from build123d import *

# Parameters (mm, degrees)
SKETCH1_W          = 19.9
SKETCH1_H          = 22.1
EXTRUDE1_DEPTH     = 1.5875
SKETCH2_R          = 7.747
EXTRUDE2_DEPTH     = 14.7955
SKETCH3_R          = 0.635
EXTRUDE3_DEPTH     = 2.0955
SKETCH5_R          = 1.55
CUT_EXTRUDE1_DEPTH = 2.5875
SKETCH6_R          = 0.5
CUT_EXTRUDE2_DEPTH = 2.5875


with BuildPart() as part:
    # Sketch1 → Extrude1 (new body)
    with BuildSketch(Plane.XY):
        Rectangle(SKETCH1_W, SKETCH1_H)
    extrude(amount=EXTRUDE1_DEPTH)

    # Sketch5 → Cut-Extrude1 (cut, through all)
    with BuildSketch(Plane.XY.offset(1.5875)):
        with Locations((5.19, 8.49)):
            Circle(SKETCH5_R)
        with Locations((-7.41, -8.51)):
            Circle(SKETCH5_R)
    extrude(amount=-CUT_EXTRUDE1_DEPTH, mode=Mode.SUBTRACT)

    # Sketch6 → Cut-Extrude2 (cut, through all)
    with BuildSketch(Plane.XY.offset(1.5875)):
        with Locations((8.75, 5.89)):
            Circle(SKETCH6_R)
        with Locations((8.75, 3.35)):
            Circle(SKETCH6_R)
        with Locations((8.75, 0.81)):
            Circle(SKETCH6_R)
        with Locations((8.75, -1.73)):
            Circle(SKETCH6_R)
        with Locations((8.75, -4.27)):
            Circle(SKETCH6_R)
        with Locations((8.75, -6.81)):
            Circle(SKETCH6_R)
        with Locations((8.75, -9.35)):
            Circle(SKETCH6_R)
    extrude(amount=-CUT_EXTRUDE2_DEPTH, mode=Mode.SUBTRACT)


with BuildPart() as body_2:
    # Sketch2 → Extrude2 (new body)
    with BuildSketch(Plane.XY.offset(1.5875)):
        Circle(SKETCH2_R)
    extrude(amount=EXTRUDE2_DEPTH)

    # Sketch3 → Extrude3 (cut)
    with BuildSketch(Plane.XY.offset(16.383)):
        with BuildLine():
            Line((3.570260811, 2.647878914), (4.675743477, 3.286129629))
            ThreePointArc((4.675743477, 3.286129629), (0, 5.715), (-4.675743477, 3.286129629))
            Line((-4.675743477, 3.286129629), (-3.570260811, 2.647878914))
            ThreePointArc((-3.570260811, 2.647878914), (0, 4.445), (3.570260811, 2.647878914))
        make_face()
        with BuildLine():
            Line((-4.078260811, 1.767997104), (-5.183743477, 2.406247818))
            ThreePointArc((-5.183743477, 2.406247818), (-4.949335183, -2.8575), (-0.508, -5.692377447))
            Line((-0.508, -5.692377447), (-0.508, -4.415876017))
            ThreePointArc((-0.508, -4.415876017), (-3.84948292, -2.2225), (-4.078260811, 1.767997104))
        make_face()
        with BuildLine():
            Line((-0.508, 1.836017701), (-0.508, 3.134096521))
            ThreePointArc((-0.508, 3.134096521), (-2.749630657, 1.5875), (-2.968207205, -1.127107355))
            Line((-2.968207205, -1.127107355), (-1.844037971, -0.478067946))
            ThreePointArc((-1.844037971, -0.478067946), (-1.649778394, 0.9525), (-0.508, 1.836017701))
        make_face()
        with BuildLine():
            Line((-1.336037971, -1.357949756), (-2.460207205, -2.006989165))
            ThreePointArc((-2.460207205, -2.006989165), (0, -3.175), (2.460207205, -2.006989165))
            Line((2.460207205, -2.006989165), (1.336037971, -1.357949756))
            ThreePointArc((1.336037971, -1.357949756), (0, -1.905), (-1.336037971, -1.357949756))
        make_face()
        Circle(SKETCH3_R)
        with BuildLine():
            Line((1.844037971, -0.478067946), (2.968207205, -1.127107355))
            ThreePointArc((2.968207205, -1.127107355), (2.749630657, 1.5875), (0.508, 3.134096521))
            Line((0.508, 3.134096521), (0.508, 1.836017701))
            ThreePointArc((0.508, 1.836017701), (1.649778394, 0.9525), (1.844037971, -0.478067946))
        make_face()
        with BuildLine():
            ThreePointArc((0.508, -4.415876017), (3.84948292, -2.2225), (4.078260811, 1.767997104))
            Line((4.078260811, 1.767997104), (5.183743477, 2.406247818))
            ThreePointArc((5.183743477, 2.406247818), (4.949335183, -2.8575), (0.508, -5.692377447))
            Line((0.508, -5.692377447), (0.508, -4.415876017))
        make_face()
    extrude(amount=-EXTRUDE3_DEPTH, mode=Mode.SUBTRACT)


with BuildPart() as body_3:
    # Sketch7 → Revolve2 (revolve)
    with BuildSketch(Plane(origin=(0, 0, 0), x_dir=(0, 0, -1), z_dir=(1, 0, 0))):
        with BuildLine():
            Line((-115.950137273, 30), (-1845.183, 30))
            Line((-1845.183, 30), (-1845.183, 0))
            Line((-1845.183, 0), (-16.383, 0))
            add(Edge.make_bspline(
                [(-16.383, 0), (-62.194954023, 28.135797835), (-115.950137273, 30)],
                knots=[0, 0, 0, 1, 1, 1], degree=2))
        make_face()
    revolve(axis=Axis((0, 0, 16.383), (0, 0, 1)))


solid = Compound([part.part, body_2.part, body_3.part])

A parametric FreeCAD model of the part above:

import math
import FreeCAD as App
import Part
import Sketcher
from FreeCAD import Vector
Q = App.Units.Quantity

doc = App.newDocument("Part")
params = doc.addObject("Spreadsheet::Sheet", "Params")
for row, (alias, value) in enumerate([
    ("pad1_length", "0.0625 in"),
    ("sketch4_diameter", "0.61 in"),
    ("pad2_length", "0.5825 in"),
    ("sketch5_diameter", "0.05 in"),
    ("sketch5_radius", "0.225 in"),
    ("sketch5_radius2", "0.175 in"),
    ("sketch5_radius3", "0.125 in"),
    ("sketch5_radius4", "0.075 in"),
    ("pocket3_length", "0.0825 in"),
    ("sketch6_height", "72 in"),
    ("revolution_angle", "360 deg"),
], start=1):
    params.set(f"A{row}", alias)
    params.set(f"B{row}", "=" + value)
    params.setAlias(f"B{row}", alias)

body = doc.addObject("PartDesign::Body", "Body")

# Sketch on XY plane
sketch1 = body.newObject("Sketcher::SketchObject", "Sketch")
sketch1.AttachmentSupport = (doc.getObject("XY_Plane"), [""])
sketch1.MapMode = "FlatFace"
sketch1.addGeometry([
    Part.LineSegment(Vector(-10, 11, 0), Vector(-10, -11, 0)),
    Part.LineSegment(Vector(-10, -11, 0), Vector(10, -11, 0)),
    Part.LineSegment(Vector(10, -11, 0), Vector(10, 11, 0)),
    Part.LineSegment(Vector(10, 11, 0), Vector(-10, 11, 0)),
], False)
sketch1.addConstraint([
    Sketcher.Constraint("Coincident", 0, 2, 1, 1),
    Sketcher.Constraint("Coincident", 1, 2, 2, 1),
    Sketcher.Constraint("Coincident", 2, 2, 3, 1),
    Sketcher.Constraint("Coincident", 3, 2, 0, 1),
    Sketcher.Constraint("Vertical", 0),
    Sketcher.Constraint("Horizontal", 1),
    Sketcher.Constraint("Vertical", 2),
    Sketcher.Constraint("Horizontal", 3),
    Sketcher.Constraint("Symmetric", 0, 2, 2, 2, -1, 1),
    Sketcher.Constraint("DistanceX", 1, 1, 1, 2, Q("19.9 mm")),
    Sketcher.Constraint("DistanceY", 0, 2, 0, 1, Q("22.1 mm")),
])
pad1 = body.newObject("PartDesign::Pad", "Pad")
pad1.Profile = sketch1
pad1.setExpression("Length", "Params.pad1_length")

# Sketch on XY plane
sketch2 = body.newObject("Sketcher::SketchObject", "Sketch001")
sketch2.AttachmentSupport = (doc.getObject("XY_Plane"), [""])
sketch2.MapMode = "FlatFace"
sketch2.AttachmentOffset = App.Placement(Vector(0, 0, 0.0625 * 25.4), App.Rotation())
sketch2.addGeometry([
    Part.Circle(Vector(5.2, 8.5, 0), Vector(0, 0, 1), 1.6),
    Part.Circle(Vector(-7.4, -8.5, 0), Vector(0, 0, 1), 1.6),
], False)
sketch2.addConstraint([
    Sketcher.Constraint("Equal", 0, 1),
    Sketcher.Constraint("Diameter", 0, Q("3.1 mm")),
    Sketcher.Constraint("DistanceX", -1, 1, 0, 3, Q("5.19 mm")),
    Sketcher.Constraint("DistanceY", -1, 1, 0, 3, Q("8.49 mm")),
    Sketcher.Constraint("DistanceX", 1, 3, -1, 1, Q("7.41 mm")),
    Sketcher.Constraint("DistanceY", 1, 3, -1, 1, Q("8.51 mm")),
])
pocket1 = body.newObject("PartDesign::Pocket", "Pocket")
pocket1.Profile = sketch2
pocket1.Type = "ThroughAll"

# Sketch on XY plane
sketch3 = body.newObject("Sketcher::SketchObject", "Sketch002")
sketch3.AttachmentSupport = (doc.getObject("XY_Plane"), [""])
sketch3.MapMode = "FlatFace"
sketch3.AttachmentOffset = App.Placement(Vector(0, 0, 0.0625 * 25.4), App.Rotation())
sketch3.addGeometry([
    Part.Circle(Vector(8.8, 5.9, 0), Vector(0, 0, 1), 0.5),  # 0
    Part.Circle(Vector(8.8, 3.4, 0), Vector(0, 0, 1), 0.5),  # 1
    Part.Circle(Vector(8.8, 0.8, 0), Vector(0, 0, 1), 0.5),  # 2
    Part.Circle(Vector(8.8, -1.7, 0), Vector(0, 0, 1), 0.5),  # 3
    Part.Circle(Vector(8.8, -4.3, 0), Vector(0, 0, 1), 0.5),  # 4
    Part.Circle(Vector(8.8, -6.8, 0), Vector(0, 0, 1), 0.5),  # 5
    Part.Circle(Vector(8.8, -9.3, 0), Vector(0, 0, 1), 0.5),  # 6
], False)
sketch3.addConstraint([
    Sketcher.Constraint("Equal", 0, 1),
    Sketcher.Constraint("Equal", 1, 2),
    Sketcher.Constraint("Equal", 2, 3),
    Sketcher.Constraint("Equal", 3, 4),
    Sketcher.Constraint("Equal", 4, 5),
    Sketcher.Constraint("Equal", 5, 6),
    Sketcher.Constraint("Vertical", 0, 3, 1, 3),
    Sketcher.Constraint("Vertical", 1, 3, 2, 3),
    Sketcher.Constraint("Vertical", 2, 3, 3, 3),
    Sketcher.Constraint("Vertical", 3, 3, 4, 3),
    Sketcher.Constraint("Vertical", 4, 3, 5, 3),
    Sketcher.Constraint("Vertical", 5, 3, 6, 3),
    Sketcher.Constraint("DistanceY", 1, 3, 0, 3, Q("0.1 in")),
    Sketcher.Constraint("DistanceY", 2, 3, 1, 3, Q("0.1 in")),
    Sketcher.Constraint("DistanceY", 3, 3, 2, 3, Q("0.1 in")),
    Sketcher.Constraint("DistanceY", 4, 3, 3, 3, Q("0.1 in")),
    Sketcher.Constraint("DistanceY", 5, 3, 4, 3, Q("0.1 in")),
    Sketcher.Constraint("DistanceY", 6, 3, 5, 3, Q("0.1 in")),
    Sketcher.Constraint("Diameter", 0, Q("1 mm")),
    Sketcher.Constraint("DistanceX", -1, 1, 0, 3, Q("8.75 mm")),
    Sketcher.Constraint("DistanceY", -1, 1, 0, 3, Q("5.89 mm")),
])
pocket2 = body.newObject("PartDesign::Pocket", "Pocket001")
pocket2.Profile = sketch3
pocket2.Type = "ThroughAll"
body2 = doc.addObject("PartDesign::Body", "Body001")

# Sketch on XY plane
sketch4 = body2.newObject("Sketcher::SketchObject", "Sketch003")
sketch4.AttachmentSupport = (doc.getObject("XY_Plane001"), [""])
sketch4.MapMode = "FlatFace"
sketch4.AttachmentOffset = App.Placement(Vector(0, 0, 0.0625 * 25.4), App.Rotation())
sketch4.addGeometry(Part.Circle(Vector(0, 0, 0), Vector(0, 0, 1), 8), False)
sketch4.addConstraint([
    Sketcher.Constraint("Coincident", 0, 3, -1, 1),
    Sketcher.Constraint("Diameter", 0, Q("0.61 in")),
])
sketch4.setExpression("Constraints[1]", "Params.sketch4_diameter")
pad2 = body2.newObject("PartDesign::Pad", "Pad001")
pad2.Profile = sketch4
pad2.setExpression("Length", "Params.pad2_length")

# Sketch on XY plane
sketch5 = body2.newObject("Sketcher::SketchObject", "Sketch004")
sketch5.AttachmentSupport = (doc.getObject("XY_Plane001"), [""])
sketch5.MapMode = "FlatFace"
sketch5.AttachmentOffset = App.Placement(Vector(0, 0, 0.645 * 25.4), App.Rotation())
sketch5.addGeometry([
    Part.LineSegment(Vector(3.6, 2.6, 0), Vector(4.7, 3.3, 0)),  # 0
    Part.ArcOfCircle(Part.Circle(Vector(0, 0, 0), Vector(0, 0, 1), 5.7), math.radians(35), math.radians(145)),  # 1
    Part.LineSegment(Vector(-4.7, 3.3, 0), Vector(-3.6, 2.6, 0)),  # 2
    Part.ArcOfCircle(Part.Circle(Vector(0, 0, 0), Vector(0, 0, 1), 4.4), math.radians(37), math.radians(143)),  # 3
    Part.LineSegment(Vector(-4.1, 1.8, 0), Vector(-5.2, 2.4, 0)),  # 4
    Part.ArcOfCircle(Part.Circle(Vector(0, 0, 0), Vector(0, 0, 1), 5.7), math.radians(155), math.radians(265)),  # 5
    Part.LineSegment(Vector(-0.5, -5.7, 0), Vector(-0.5, -4.4, 0)),  # 6
    Part.ArcOfCircle(Part.Circle(Vector(0, 0, 0), Vector(0, 0, 1), 4.4), math.radians(157), math.radians(263)),  # 7
    Part.LineSegment(Vector(-0.5, 1.8, 0), Vector(-0.5, 3.1, 0)),  # 8
    Part.ArcOfCircle(Part.Circle(Vector(0, 0, 0), Vector(0, 0, 1), 3.2), math.radians(99), math.radians(201)),  # 9
    Part.LineSegment(Vector(-3, -1.1, 0), Vector(-1.8, -0.5, 0)),  # 10
    Part.ArcOfCircle(Part.Circle(Vector(0, 0, 0), Vector(0, 0, 1), 1.9), math.radians(105), math.radians(195)),  # 11
    Part.LineSegment(Vector(-1.3, -1.4, 0), Vector(-2.5, -2, 0)),  # 12
    Part.ArcOfCircle(Part.Circle(Vector(0, 0, 0), Vector(0, 0, 1), 3.2), math.radians(-141), math.radians(-39)),  # 13
    Part.LineSegment(Vector(2.5, -2, 0), Vector(1.3, -1.4, 0)),  # 14
    Part.ArcOfCircle(Part.Circle(Vector(0, 0, 0), Vector(0, 0, 1), 1.9), math.radians(-135), math.radians(-45)),  # 15
    Part.Circle(Vector(0, 0, 0), Vector(0, 0, 1), 0.6),  # 16
    Part.LineSegment(Vector(1.8, -0.5, 0), Vector(3, -1.1, 0)),  # 17
    Part.ArcOfCircle(Part.Circle(Vector(0, 0, 0), Vector(0, 0, 1), 3.2), math.radians(-21), math.radians(81)),  # 18
    Part.LineSegment(Vector(0.5, 3.1, 0), Vector(0.5, 1.8, 0)),  # 19
    Part.ArcOfCircle(Part.Circle(Vector(0, 0, 0), Vector(0, 0, 1), 1.9), math.radians(-15), math.radians(75)),  # 20
    Part.ArcOfCircle(Part.Circle(Vector(0, 0, 0), Vector(0, 0, 1), 4.4), math.radians(-83), math.radians(23)),  # 21
    Part.LineSegment(Vector(0.5, -4.4, 0), Vector(0.5, -5.7, 0)),  # 22
    Part.ArcOfCircle(Part.Circle(Vector(0, 0, 0), Vector(0, 0, 1), 5.7), math.radians(-85), math.radians(25)),  # 23
    Part.LineSegment(Vector(5.2, 2.4, 0), Vector(4.1, 1.8, 0)),  # 24
], False)
sketch5.addConstraint([
    Sketcher.Constraint("Coincident", 0, 2, 1, 1),
    Sketcher.Constraint("Coincident", 1, 2, 2, 1),
    Sketcher.Constraint("Coincident", 2, 2, 3, 2),
    Sketcher.Constraint("Coincident", 3, 1, 0, 1),
    Sketcher.Constraint("Coincident", 4, 2, 5, 1),
    Sketcher.Constraint("Coincident", 5, 2, 6, 1),
    Sketcher.Constraint("Coincident", 6, 2, 7, 2),
    Sketcher.Constraint("Coincident", 7, 1, 4, 1),
    Sketcher.Constraint("Coincident", 8, 2, 9, 1),
    Sketcher.Constraint("Coincident", 9, 2, 10, 1),
    Sketcher.Constraint("Coincident", 10, 2, 11, 2),
    Sketcher.Constraint("Coincident", 11, 1, 8, 1),
    Sketcher.Constraint("Coincident", 12, 2, 13, 1),
    Sketcher.Constraint("Coincident", 13, 2, 14, 1),
    Sketcher.Constraint("Coincident", 14, 2, 15, 2),
    Sketcher.Constraint("Coincident", 15, 1, 12, 1),
    Sketcher.Constraint("Coincident", 17, 2, 18, 1),
    Sketcher.Constraint("Coincident", 18, 2, 19, 1),
    Sketcher.Constraint("Coincident", 19, 2, 20, 2),
    Sketcher.Constraint("Coincident", 20, 1, 17, 1),
    Sketcher.Constraint("Coincident", 21, 1, 22, 1),
    Sketcher.Constraint("Coincident", 22, 2, 23, 1),
    Sketcher.Constraint("Coincident", 23, 2, 24, 1),
    Sketcher.Constraint("Coincident", 24, 2, 21, 2),
    Sketcher.Constraint("Vertical", 6),
    Sketcher.Constraint("Vertical", 8),
    Sketcher.Constraint("Vertical", 19),
    Sketcher.Constraint("Vertical", 22),
    Sketcher.Constraint("Coincident", 1, 3, -1, 1),
    Sketcher.Constraint("Coincident", 3, 3, -1, 1),
    Sketcher.Constraint("Coincident", 5, 3, -1, 1),
    Sketcher.Constraint("Coincident", 7, 3, -1, 1),
    Sketcher.Constraint("Coincident", 9, 3, -1, 1),
    Sketcher.Constraint("Coincident", 11, 3, -1, 1),
    Sketcher.Constraint("Coincident", 13, 3, -1, 1),
    Sketcher.Constraint("Coincident", 15, 3, -1, 1),
    Sketcher.Constraint("Coincident", 16, 3, -1, 1),
    Sketcher.Constraint("Coincident", 18, 3, -1, 1),
    Sketcher.Constraint("Coincident", 20, 3, -1, 1),
    Sketcher.Constraint("Coincident", 21, 3, -1, 1),
    Sketcher.Constraint("Coincident", 23, 3, -1, 1),
    Sketcher.Constraint("Equal", 1, 5),
    Sketcher.Constraint("Equal", 3, 7),
    Sketcher.Constraint("Equal", 9, 13),
    Sketcher.Constraint("Equal", 11, 15),
    Sketcher.Constraint("Equal", 13, 18),
    Sketcher.Constraint("Equal", 15, 20),
    Sketcher.Constraint("Equal", 7, 21),
    Sketcher.Constraint("Equal", 5, 23),
    Sketcher.Constraint("Parallel", 2, 4),
    Sketcher.Constraint("Parallel", 0, 10),
    Sketcher.Constraint("Parallel", 10, 12),
    Sketcher.Constraint("Parallel", 4, 14),
    Sketcher.Constraint("Parallel", 14, 17),
    Sketcher.Constraint("Parallel", 12, 24),
    Sketcher.Constraint("Horizontal", 0, 2, 1, 2),
    Sketcher.Constraint("Horizontal", 2, 2, 3, 1),
    Sketcher.Constraint("Horizontal", 12, 2, 13, 2),
    Sketcher.Constraint("Horizontal", 9, 2, 17, 2),
    Sketcher.Constraint("Horizontal", 8, 2, 18, 2),
    Sketcher.Constraint("Horizontal", 6, 2, 21, 1),
    Sketcher.Constraint("Horizontal", 4, 2, 23, 2),
    Sketcher.Constraint("Vertical", 6, 2, 8, 2),
    Sketcher.Constraint("Equal", 2, 4),
    Sketcher.Constraint("Equal", 10, 12),
    Sketcher.Constraint("Diameter", 16, Q("0.05 in")),
    Sketcher.Constraint("Angle", 0, Q("30 deg")),
    Sketcher.Constraint("Radius", 1, Q("0.225 in")),
    Sketcher.Constraint("Radius", 3, Q("0.175 in")),
    Sketcher.Constraint("Radius", 9, Q("0.125 in")),
    Sketcher.Constraint("Radius", 11, Q("0.075 in")),
    Sketcher.Constraint("DistanceX", 5, 2, -1, 1, Q("0.02 in")),
    Sketcher.Constraint("DistanceX", 4, 2, 1, 2, Q("0.02 in")),
    Sketcher.Constraint("DistanceX", 9, 2, 12, 2, Q("0.02 in")),
])
sketch5.setExpression("Constraints[65]", "Params.sketch5_diameter")
sketch5.setExpression("Constraints[67]", "Params.sketch5_radius")
sketch5.setExpression("Constraints[68]", "Params.sketch5_radius2")
sketch5.setExpression("Constraints[69]", "Params.sketch5_radius3")
sketch5.setExpression("Constraints[70]", "Params.sketch5_radius4")
pocket3 = body2.newObject("PartDesign::Pocket", "Pocket002")
pocket3.Profile = sketch5
pocket3.setExpression("Length", "Params.pocket3_length")
body3 = doc.addObject("PartDesign::Body", "Body002")

# Sketch on YZ plane
sketch6 = body3.newObject("Sketcher::SketchObject", "Sketch005")
sketch6.AttachmentSupport = (doc.getObject("YZ_Plane002"), [""])
sketch6.MapMode = "FlatFace"
sketch6.addGeometry([
    Part.LineSegment(Vector(30, 115.950137, 0), Vector(30, 1845.183, 0)),
    Part.LineSegment(Vector(30, 1845.183, 0), Vector(0, 1845.183, 0)),
    Part.LineSegment(Vector(0, 1845.183, 0), Vector(0, 16.383, 0)),
    Part.BSplineCurve([Vector(0, 16.383, 0), Vector(28.135798, 62.194954, 0), Vector(30, 115.950137, 0)], [3, 3], [0, 1], False, 2, [1, 1, 1], False),
], False)
sketch6.addConstraint([
    Sketcher.Constraint("Block", 3),
    Sketcher.Constraint("Coincident", 0, 2, 1, 1),
    Sketcher.Constraint("Coincident", 1, 2, 2, 1),
    Sketcher.Constraint("Coincident", 2, 2, 3, 1),
    Sketcher.Constraint("Coincident", 3, 2, 0, 1),
    Sketcher.Constraint("Vertical", 0),
    Sketcher.Constraint("Horizontal", 1),
    Sketcher.Constraint("Vertical", 2),
    Sketcher.Constraint("DistanceY", 2, 2, 2, 1, Q("72 in")),
])
sketch6.setExpression("Constraints[8]", "Params.sketch6_height")
revolution = body3.newObject("PartDesign::Revolution", "Revolution")
revolution.Profile = sketch6
revolution.ReferenceAxis = (sketch6, ["V_Axis"])
revolution.setExpression("Angle", "Params.revolution_angle")

doc.recompute()
